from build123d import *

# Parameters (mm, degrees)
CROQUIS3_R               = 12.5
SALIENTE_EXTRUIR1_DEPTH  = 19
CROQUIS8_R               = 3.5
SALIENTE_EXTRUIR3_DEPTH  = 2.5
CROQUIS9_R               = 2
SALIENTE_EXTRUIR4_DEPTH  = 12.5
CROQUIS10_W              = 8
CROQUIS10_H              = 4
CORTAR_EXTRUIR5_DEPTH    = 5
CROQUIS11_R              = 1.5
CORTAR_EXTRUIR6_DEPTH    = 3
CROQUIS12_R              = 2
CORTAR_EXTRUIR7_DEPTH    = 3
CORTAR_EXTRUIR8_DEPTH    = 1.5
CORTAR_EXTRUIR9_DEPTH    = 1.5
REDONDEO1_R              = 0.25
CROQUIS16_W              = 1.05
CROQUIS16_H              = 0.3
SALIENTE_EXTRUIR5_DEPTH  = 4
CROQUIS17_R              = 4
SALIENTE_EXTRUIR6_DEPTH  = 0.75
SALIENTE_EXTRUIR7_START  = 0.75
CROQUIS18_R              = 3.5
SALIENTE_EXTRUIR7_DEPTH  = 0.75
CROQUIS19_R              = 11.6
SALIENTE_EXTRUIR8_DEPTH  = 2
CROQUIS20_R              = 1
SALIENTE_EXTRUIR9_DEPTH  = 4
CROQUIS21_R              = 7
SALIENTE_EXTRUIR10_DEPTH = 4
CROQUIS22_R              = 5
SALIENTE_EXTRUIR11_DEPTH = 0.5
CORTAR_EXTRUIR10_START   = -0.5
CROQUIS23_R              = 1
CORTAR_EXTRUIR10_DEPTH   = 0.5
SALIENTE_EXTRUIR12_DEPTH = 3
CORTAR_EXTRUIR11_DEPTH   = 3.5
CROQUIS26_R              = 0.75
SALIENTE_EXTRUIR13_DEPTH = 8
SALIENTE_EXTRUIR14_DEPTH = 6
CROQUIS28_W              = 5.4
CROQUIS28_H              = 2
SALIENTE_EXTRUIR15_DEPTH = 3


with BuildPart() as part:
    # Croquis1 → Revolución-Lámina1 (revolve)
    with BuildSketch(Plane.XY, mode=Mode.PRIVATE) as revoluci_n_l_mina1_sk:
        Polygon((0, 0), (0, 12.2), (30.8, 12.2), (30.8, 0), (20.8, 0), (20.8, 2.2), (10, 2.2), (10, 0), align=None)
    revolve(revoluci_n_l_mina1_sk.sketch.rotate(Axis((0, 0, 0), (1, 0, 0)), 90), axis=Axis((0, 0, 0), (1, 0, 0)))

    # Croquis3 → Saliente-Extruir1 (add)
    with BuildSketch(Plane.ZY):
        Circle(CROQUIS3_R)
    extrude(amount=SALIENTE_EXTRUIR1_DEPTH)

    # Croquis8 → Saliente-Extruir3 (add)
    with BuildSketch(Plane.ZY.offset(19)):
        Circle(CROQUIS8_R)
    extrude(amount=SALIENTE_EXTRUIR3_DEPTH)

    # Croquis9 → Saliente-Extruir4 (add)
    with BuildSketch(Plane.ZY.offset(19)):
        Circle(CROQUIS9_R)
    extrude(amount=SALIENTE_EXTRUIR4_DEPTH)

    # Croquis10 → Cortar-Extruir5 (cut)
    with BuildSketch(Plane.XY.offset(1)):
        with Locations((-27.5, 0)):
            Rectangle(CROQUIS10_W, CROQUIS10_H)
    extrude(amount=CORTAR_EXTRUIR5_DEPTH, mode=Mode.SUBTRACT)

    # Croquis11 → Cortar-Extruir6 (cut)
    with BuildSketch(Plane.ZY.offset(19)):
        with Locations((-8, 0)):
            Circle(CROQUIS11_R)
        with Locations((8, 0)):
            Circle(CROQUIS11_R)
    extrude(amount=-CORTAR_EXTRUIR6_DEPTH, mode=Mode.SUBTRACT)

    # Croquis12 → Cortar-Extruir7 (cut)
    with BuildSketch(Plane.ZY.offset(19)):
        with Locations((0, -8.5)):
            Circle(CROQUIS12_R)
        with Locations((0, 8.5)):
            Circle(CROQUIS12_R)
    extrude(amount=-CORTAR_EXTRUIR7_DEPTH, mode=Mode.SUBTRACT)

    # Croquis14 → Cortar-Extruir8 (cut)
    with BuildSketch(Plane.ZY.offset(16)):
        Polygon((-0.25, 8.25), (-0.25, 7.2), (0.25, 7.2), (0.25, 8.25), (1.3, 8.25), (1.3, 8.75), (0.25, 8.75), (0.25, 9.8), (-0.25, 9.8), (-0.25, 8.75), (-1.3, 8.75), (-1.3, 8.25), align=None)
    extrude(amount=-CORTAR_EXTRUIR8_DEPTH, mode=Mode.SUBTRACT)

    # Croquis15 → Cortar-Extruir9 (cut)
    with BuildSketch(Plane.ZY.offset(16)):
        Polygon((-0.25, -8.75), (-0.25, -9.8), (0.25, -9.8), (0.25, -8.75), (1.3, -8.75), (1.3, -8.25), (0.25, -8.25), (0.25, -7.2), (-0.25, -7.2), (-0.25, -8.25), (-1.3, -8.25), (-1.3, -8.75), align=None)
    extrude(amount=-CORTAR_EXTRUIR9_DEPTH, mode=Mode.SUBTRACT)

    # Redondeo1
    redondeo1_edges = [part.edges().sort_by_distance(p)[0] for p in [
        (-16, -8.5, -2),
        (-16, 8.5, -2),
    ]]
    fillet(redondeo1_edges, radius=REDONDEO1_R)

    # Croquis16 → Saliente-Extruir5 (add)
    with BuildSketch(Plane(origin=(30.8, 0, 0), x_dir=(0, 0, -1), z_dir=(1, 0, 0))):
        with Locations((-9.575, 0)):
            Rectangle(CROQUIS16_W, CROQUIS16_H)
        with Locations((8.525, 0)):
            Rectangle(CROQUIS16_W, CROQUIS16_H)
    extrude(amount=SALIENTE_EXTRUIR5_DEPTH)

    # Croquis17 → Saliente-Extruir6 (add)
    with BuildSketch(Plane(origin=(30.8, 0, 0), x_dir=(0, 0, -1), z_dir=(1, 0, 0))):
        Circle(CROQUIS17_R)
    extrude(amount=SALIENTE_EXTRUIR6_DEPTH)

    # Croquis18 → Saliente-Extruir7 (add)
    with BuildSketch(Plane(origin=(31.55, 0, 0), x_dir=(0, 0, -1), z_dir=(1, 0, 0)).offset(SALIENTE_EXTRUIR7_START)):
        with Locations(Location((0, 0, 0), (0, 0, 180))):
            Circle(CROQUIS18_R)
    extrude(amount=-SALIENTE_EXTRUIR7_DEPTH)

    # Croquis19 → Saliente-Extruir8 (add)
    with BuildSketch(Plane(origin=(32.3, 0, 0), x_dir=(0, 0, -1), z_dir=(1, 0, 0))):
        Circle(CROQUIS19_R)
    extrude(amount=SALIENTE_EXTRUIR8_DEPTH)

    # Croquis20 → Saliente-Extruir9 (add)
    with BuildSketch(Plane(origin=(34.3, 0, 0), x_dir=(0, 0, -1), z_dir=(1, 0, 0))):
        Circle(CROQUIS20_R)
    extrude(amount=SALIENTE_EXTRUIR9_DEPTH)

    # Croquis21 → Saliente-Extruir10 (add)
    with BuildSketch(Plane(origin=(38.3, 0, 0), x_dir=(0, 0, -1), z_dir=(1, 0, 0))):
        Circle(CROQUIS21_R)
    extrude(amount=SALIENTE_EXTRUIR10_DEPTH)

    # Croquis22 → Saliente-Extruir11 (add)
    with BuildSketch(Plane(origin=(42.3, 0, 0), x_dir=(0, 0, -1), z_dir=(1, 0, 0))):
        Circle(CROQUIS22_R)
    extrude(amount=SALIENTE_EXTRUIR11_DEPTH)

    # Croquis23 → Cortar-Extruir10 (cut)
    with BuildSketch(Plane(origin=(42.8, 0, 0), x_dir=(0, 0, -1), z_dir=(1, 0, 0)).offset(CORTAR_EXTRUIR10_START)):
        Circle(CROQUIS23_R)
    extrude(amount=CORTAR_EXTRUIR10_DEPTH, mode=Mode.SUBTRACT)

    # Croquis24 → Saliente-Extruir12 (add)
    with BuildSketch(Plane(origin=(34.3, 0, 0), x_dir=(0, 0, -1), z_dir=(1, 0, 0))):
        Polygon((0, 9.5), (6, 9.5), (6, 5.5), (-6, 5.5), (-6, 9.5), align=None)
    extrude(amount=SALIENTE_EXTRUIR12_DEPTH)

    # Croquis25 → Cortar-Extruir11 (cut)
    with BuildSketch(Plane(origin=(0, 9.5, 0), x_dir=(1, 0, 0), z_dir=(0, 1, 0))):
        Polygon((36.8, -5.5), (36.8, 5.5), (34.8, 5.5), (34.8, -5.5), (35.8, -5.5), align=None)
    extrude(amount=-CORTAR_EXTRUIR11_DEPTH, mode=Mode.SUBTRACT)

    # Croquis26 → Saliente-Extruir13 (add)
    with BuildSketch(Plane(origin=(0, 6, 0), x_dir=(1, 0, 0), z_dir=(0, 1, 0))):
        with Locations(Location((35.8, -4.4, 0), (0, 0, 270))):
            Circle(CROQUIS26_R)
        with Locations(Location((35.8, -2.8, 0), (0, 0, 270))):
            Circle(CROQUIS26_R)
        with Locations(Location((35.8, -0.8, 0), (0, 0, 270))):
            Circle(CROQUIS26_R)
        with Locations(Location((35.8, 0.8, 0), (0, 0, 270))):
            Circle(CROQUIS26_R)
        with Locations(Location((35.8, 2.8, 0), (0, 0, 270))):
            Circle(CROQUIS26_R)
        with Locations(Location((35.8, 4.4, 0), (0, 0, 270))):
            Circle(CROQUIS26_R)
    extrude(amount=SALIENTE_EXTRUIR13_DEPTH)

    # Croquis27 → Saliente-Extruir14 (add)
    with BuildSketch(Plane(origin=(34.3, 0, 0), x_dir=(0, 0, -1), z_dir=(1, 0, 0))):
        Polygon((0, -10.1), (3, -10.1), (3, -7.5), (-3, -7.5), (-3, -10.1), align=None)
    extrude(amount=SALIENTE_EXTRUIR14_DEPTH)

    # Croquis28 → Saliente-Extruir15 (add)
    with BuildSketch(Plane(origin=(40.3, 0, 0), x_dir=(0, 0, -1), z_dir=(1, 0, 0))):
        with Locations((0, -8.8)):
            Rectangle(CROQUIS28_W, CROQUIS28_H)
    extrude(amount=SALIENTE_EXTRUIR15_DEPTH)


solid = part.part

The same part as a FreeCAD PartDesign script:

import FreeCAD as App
import Part
import Sketcher
from FreeCAD import Vector


def edges_at(feature, points):
    """Names of the edges that pass closest to the given points."""
    edges = feature.Shape.Edges
    near = lambda p: min(range(len(edges)), key=lambda i: edges[i].distToShape(Part.Vertex(*p))[0])
    return sorted({f"Edge{near(p) + 1}" for p in points})

doc = App.newDocument("Part")
params = doc.addObject("Spreadsheet::Sheet", "Params")
for row, (alias, value) in enumerate([
    ("sketch1_width", "10 mm"),
    ("sketch1_width2", "10.8 mm"),
    ("sketch1_height", "12.2 mm"),
    ("sketch1_height2", "2.2 mm"),
    ("revolution_angle", "360 deg"),
    ("sketch2_diameter", "25 mm"),
    ("pad1_length", "19 mm"),
    ("sketch3_diameter", "7 mm"),
    ("pad2_length", "2.5 mm"),
    ("sketch4_diameter", "4 mm"),
    ("pad3_length", "12.5 mm"),
    ("sketch5_width", "8 mm"),
    ("sketch5_height", "4 mm"),
    ("pocket1_length", "5 mm"),
    ("sketch6_diameter", "3 mm"),
    ("pocket2_length", "3 mm"),
    ("sketch7_diameter", "4 mm"),
    ("pocket3_length", "3 mm"),
    ("sketch8_width", "0.5 mm"),
    ("sketch8_width2", "1.05 mm"),
    ("pocket4_length", "1.5 mm"),
    ("sketch9_width", "0.5 mm"),
    ("sketch9_width2", "1.05 mm"),
    ("pocket5_length", "1.5 mm"),
    ("fillet_radius", "0.25 mm"),
    ("sketch10_width", "0.3 mm"),
    ("sketch10_height", "1.05 mm"),
    ("pad4_length", "4 mm"),
    ("sketch11_diameter", "8 mm"),
    ("pad5_length", "0.75 mm"),
    ("sketch12_diameter", "7 mm"),
    ("pad6_length", "0.75 mm"),
    ("sketch13_diameter", "23.2 mm"),
    ("pad7_length", "2 mm"),
    ("sketch14_diameter", "2 mm"),
    ("pad8_length", "4 mm"),
    ("sketch15_diameter", "14 mm"),
    ("pad9_length", "4 mm"),
    ("sketch16_diameter", "10 mm"),
    ("pad10_length", "0.5 mm"),
    ("sketch17_diameter", "2 mm"),
    ("pocket6_length", "0.5 mm"),
    ("sketch18_width", "4 mm"),
    ("sketch18_height", "12 mm"),
    ("pad11_length", "3 mm"),
    ("sketch19_width", "2 mm"),
    ("sketch19_height", "11 mm"),
    ("pocket7_length", "3.5 mm"),
    ("sketch20_diameter", "1.5 mm"),
    ("pad12_length", "8 mm"),
    ("sketch21_height", "6 mm"),
    ("sketch21_width", "2.6 mm"),
    ("pad13_length", "6 mm"),
    ("sketch22_width", "2 mm"),
    ("sketch22_height", "5.4 mm"),
    ("pad14_length", "3 mm"),
], start=1):
    params.set(f"A{row}", alias)
    params.set(f"B{row}", "=" + value)
    params.setAlias(f"B{row}", alias)

body = doc.addObject("PartDesign::Body", "Body")

sketch1 = body.newObject("Sketcher::SketchObject", "Sketch")
sketch1.AttachmentSupport = (doc.getObject("XY_Plane"), [""])
sketch1.MapMode = "FlatFace"
sketch1.addGeometry(Part.LineSegment(Vector(0, 12.2, 0), Vector(0, 0, 0)), False)
sketch1.addGeometry(Part.LineSegment(Vector(0, 0, 0), Vector(10, 0, 0)), False)
sketch1.addGeometry(Part.LineSegment(Vector(10, 0, 0), Vector(10, 2.2, 0)), False)
sketch1.addGeometry(Part.LineSegment(Vector(10, 2.2, 0), Vector(20.8, 2.2, 0)), False)
sketch1.addGeometry(Part.LineSegment(Vector(20.8, 2.2, 0), Vector(20.8, 0, 0)), False)
sketch1.addGeometry(Part.LineSegment(Vector(20.8, 0, 0), Vector(30.8, 0, 0)), False)
sketch1.addGeometry(Part.LineSegment(Vector(30.8, 0, 0), Vector(30.8, 12.2, 0)), False)
sketch1.addGeometry(Part.LineSegment(Vector(30.8, 12.2, 0), Vector(0, 12.2, 0)), False)
sketch1.addConstraint(Sketcher.Constraint("Coincident", 0, 2, 1, 1))
sketch1.addConstraint(Sketcher.Constraint("Coincident", 1, 2, 2, 1))
sketch1.addConstraint(Sketcher.Constraint("Coincident", 2, 2, 3, 1))
sketch1.addConstraint(Sketcher.Constraint("Coincident", 3, 2, 4, 1))
sketch1.addConstraint(Sketcher.Constraint("Coincident", 4, 2, 5, 1))
sketch1.addConstraint(Sketcher.Constraint("Coincident", 5, 2, 6, 1))
sketch1.addConstraint(Sketcher.Constraint("Coincident", 6, 2, 7, 1))
sketch1.addConstraint(Sketcher.Constraint("Coincident", 7, 2, 0, 1))
sketch1.addConstraint(Sketcher.Constraint("Vertical", 0))
sketch1.addConstraint(Sketcher.Constraint("Horizontal", 1))
sketch1.addConstraint(Sketcher.Constraint("Vertical", 2))
sketch1.addConstraint(Sketcher.Constraint("Horizontal", 3))
sketch1.addConstraint(Sketcher.Constraint("Vertical", 4))
sketch1.addConstraint(Sketcher.Constraint("Horizontal", 5))
sketch1.addConstraint(Sketcher.Constraint("Vertical", 6))
sketch1.addConstraint(Sketcher.Constraint("Horizontal", 7))
sketch1.addConstraint(Sketcher.Constraint("Coincident", 0, 2, -1, 1))
sketch1.addConstraint(Sketcher.Constraint("PointOnObject", 4, 2, -1))
sketch1.addConstraint(Sketcher.Constraint("Equal", 1, 5))
sketch1.addConstraint(Sketcher.Constraint("DistanceX", 1, 1, 1, 2, 10.0))
sketch1.addConstraint(Sketcher.Constraint("DistanceX", 3, 1, 3, 2, 10.8))
sketch1.addConstraint(Sketcher.Constraint("DistanceY", 0, 2, 0, 1, 12.2))
sketch1.addConstraint(Sketcher.Constraint("DistanceY", 2, 1, 2, 2, 2.2))
sketch1.setExpression("Constraints[19]", "Params.sketch1_width")
sketch1.setExpression("Constraints[20]", "Params.sketch1_width2")
sketch1.setExpression("Constraints[21]", "Params.sketch1_height")
sketch1.setExpression("Constraints[22]", "Params.sketch1_height2")
revolution = body.newObject("PartDesign::Revolution", "Revolution")
revolution.Profile = sketch1
revolution.ReferenceAxis = (sketch1, ["H_Axis"])
revolution.setExpression("Angle", "Params.revolution_angle")

sketch2 = body.newObject("Sketcher::SketchObject", "Sketch001")
sketch2.AttachmentSupport = (doc.getObject("YZ_Plane"), [""])
sketch2.MapMode = "FlatFace"
sketch2.addGeometry(Part.Circle(Vector(0, 0, 0), Vector(0, 0, 1), 12), False)
sketch2.addConstraint(Sketcher.Constraint("Coincident", 0, 3, -1, 1))
sketch2.addConstraint(Sketcher.Constraint("Diameter", 0, 25.0))
sketch2.setExpression("Constraints[1]", "Params.sketch2_diameter")
pad1 = body.newObject("PartDesign::Pad", "Pad")
pad1.Profile = sketch2
pad1.setExpression("Length", "Params.pad1_length")
pad1.Reversed = True

sketch3 = body.newObject("Sketcher::SketchObject", "Sketch002")
sketch3.AttachmentSupport = (doc.getObject("YZ_Plane"), [""])
sketch3.MapMode = "FlatFace"
sketch3.AttachmentOffset = App.Placement(Vector(0, 0, -19), App.Rotation())
sketch3.addGeometry(Part.Circle(Vector(0, 0, 0), Vector(0, 0, 1), 3.5), False)
sketch3.addConstraint(Sketcher.Constraint("Coincident", 0, 3, -1, 1))
sketch3.addConstraint(Sketcher.Constraint("Diameter", 0, 7.0))
sketch3.setExpression("Constraints[1]", "Params.sketch3_diameter")
pad2 = body.newObject("PartDesign::Pad", "Pad001")
pad2.Profile = sketch3
pad2.setExpression("Length", "Params.pad2_length")
pad2.Reversed = True

sketch4 = body.newObject("Sketcher::SketchObject", "Sketch003")
sketch4.AttachmentSupport = (doc.getObject("YZ_Plane"), [""])
sketch4.MapMode = "FlatFace"
sketch4.AttachmentOffset = App.Placement(Vector(0, 0, -19), App.Rotation())
sketch4.addGeometry(Part.Circle(Vector(0, 0, 0), Vector(0, 0, 1), 2), False)
sketch4.addConstraint(Sketcher.Constraint("Coincident", 0, 3, -1, 1))
sketch4.addConstraint(Sketcher.Constraint("Diameter", 0, 4.0))
sketch4.setExpression("Constraints[1]", "Params.sketch4_diameter")
pad3 = body.newObject("PartDesign::Pad", "Pad002")
pad3.Profile = sketch4
pad3.setExpression("Length", "Params.pad3_length")
pad3.Reversed = True

sketch5 = body.newObject("Sketcher::SketchObject", "Sketch004")
sketch5.AttachmentSupport = (doc.getObject("XY_Plane"), [""])
sketch5.MapMode = "FlatFace"
sketch5.AttachmentOffset = App.Placement(Vector(0, 0, 1), App.Rotation())
sketch5.addGeometry(Part.LineSegment(Vector(-31.5, 2, 0), Vector(-31.5, -2, 0)), False)
sketch5.addGeometry(Part.LineSegment(Vector(-31.5, -2, 0), Vector(-23.5, -2, 0)), False)
sketch5.addGeometry(Part.LineSegment(Vector(-23.5, -2, 0), Vector(-23.5, 2, 0)), False)
sketch5.addGeometry(Part.LineSegment(Vector(-23.5, 2, 0), Vector(-31.5, 2, 0)), False)
sketch5.addConstraint(Sketcher.Constraint("Coincident", 0, 2, 1, 1))
sketch5.addConstraint(Sketcher.Constraint("Coincident", 1, 2, 2, 1))
sketch5.addConstraint(Sketcher.Constraint("Coincident", 2, 2, 3, 1))
sketch5.addConstraint(Sketcher.Constraint("Coincident", 3, 2, 0, 1))
sketch5.addConstraint(Sketcher.Constraint("Vertical", 0))
sketch5.addConstraint(Sketcher.Constraint("Horizontal", 1))
sketch5.addConstraint(Sketcher.Constraint("Vertical", 2))
sketch5.addConstraint(Sketcher.Constraint("Horizontal", 3))
sketch5.addConstraint(Sketcher.Constraint("DistanceX", 1, 1, 1, 2, 8.0))
sketch5.addConstraint(Sketcher.Constraint("DistanceY", 0, 2, 0, 1, 4.0))
sketch5.addConstraint(Sketcher.Constraint("DistanceY", 0, 2, -1, 1, 2.0))
sketch5.addConstraint(Sketcher.Constraint("DistanceX", 0, 2, -1, 1, 31.5))
sketch5.setExpression("Constraints[8]", "Params.sketch5_width")
sketch5.setExpression("Constraints[9]", "Params.sketch5_height")
pocket1 = body.newObject("PartDesign::Pocket", "Pocket")
pocket1.Profile = sketch5
pocket1.setExpression("Length", "Params.pocket1_length")
pocket1.Reversed = True

sketch6 = body.newObject("Sketcher::SketchObject", "Sketch005")
sketch6.AttachmentSupport = (doc.getObject("YZ_Plane"), [""])
sketch6.MapMode = "FlatFace"
sketch6.AttachmentOffset = App.Placement(Vector(0, 0, -19), App.Rotation())
sketch6.addGeometry(Part.Circle(Vector(0, -8, 0), Vector(0, 0, 1), 1.5), False)
sketch6.addGeometry(Part.Circle(Vector(0, 8, 0), Vector(0, 0, 1), 1.5), False)
sketch6.addConstraint(Sketcher.Constraint("Equal", 0, 1))
sketch6.addConstraint(Sketcher.Constraint("Symmetric", 0, 3, 1, 3, -1, 1))
sketch6.addConstraint(Sketcher.Constraint("PointOnObject", 0, 3, -2))
sketch6.addConstraint(Sketcher.Constraint("Diameter", 0, 3.0))
sketch6.addConstraint(Sketcher.Constraint("DistanceY", 0, 3, -1, 1, 8.0))
sketch6.setExpression("Constraints[3]", "Params.sketch6_diameter")
pocket2 = body.newObject("PartDesign::Pocket", "Pocket001")
pocket2.Profile = sketch6
pocket2.setExpression("Length", "Params.pocket2_length")
pocket2.Reversed = True

sketch7 = body.newObject("Sketcher::SketchObject", "Sketch006")
sketch7.AttachmentSupport = (doc.getObject("YZ_Plane"), [""])
sketch7.MapMode = "FlatFace"
sketch7.AttachmentOffset = App.Placement(Vector(0, 0, -19), App.Rotation())
sketch7.addGeometry(Part.Circle(Vector(-8.5, 0, 0), Vector(0, 0, 1), 2), False)
sketch7.addGeometry(Part.Circle(Vector(8.5, 0, 0), Vector(0, 0, 1), 2), False)
sketch7.addConstraint(Sketcher.Constraint("Equal", 0, 1))
sketch7.addConstraint(Sketcher.Constraint("Symmetric", 0, 3, 1, 3, -1, 1))
sketch7.addConstraint(Sketcher.Constraint("PointOnObject", 0, 3, -1))
sketch7.addConstraint(Sketcher.Constraint("Diameter", 0, 4.0))
sketch7.addConstraint(Sketcher.Constraint("DistanceX", 0, 3, 1, 3, 17.0))
sketch7.setExpression("Constraints[3]", "Params.sketch7_diameter")
pocket3 = body.newObject("PartDesign::Pocket", "Pocket002")
pocket3.Profile = sketch7
pocket3.setExpression("Length", "Params.pocket3_length")
pocket3.Reversed = True

sketch8 = body.newObject("Sketcher::SketchObject", "Sketch007")
sketch8.AttachmentSupport = (doc.getObject("YZ_Plane"), [""])
sketch8.MapMode = "FlatFace"
sketch8.AttachmentOffset = App.Placement(Vector(0, 0, -16), App.Rotation())
sketch8.addGeometry(Part.LineSegment(Vector(8.2, -0.2, 0), Vector(7.2, -0.2, 0)), False)
sketch8.addGeometry(Part.LineSegment(Vector(7.2, -0.2, 0), Vector(7.2, 0.2, 0)), False)
sketch8.addGeometry(Part.LineSegment(Vector(7.2, 0.2, 0), Vector(8.2, 0.2, 0)), False)
sketch8.addGeometry(Part.LineSegment(Vector(8.2, 0.2, 0), Vector(8.2, 1.3, 0)), False)
sketch8.addGeometry(Part.LineSegment(Vector(8.2, 1.3, 0), Vector(8.8, 1.3, 0)), False)
sketch8.addGeometry(Part.LineSegment(Vector(8.8, 1.3, 0), Vector(8.8, 0.2, 0)), False)
sketch8.addGeometry(Part.LineSegment(Vector(8.8, 0.2, 0), Vector(9.8, 0.2, 0)), False)
sketch8.addGeometry(Part.LineSegment(Vector(9.8, 0.2, 0), Vector(9.8, -0.2, 0)), False)
sketch8.addGeometry(Part.LineSegment(Vector(9.8, -0.2, 0), Vector(8.8, -0.2, 0)), False)
sketch8.addGeometry(Part.LineSegment(Vector(8.8, -0.2, 0), Vector(8.8, -1.3, 0)), False)
sketch8.addGeometry(Part.LineSegment(Vector(8.8, -1.3, 0), Vector(8.2, -1.3, 0)), False)
sketch8.addGeometry(Part.LineSegment(Vector(8.2, -1.3, 0), Vector(8.2, -0.2, 0)), False)
sketch8.addConstraint(Sketcher.Constraint("Coincident", 0, 2, 1, 1))
sketch8.addConstraint(Sketcher.Constraint("Coincident", 1, 2, 2, 1))
sketch8.addConstraint(Sketcher.Constraint("Coincident", 2, 2, 3, 1))
sketch8.addConstraint(Sketcher.Constraint("Coincident", 3, 2, 4, 1))
sketch8.addConstraint(Sketcher.Constraint("Coincident", 4, 2, 5, 1))
sketch8.addConstraint(Sketcher.Constraint("Coincident", 5, 2, 6, 1))
sketch8.addConstraint(Sketcher.Constraint("Coincident", 6, 2, 7, 1))
sketch8.addConstraint(Sketcher.Constraint("Coincident", 7, 2, 8, 1))
sketch8.addConstraint(Sketcher.Constraint("Coincident", 8, 2, 9, 1))
sketch8.addConstraint(Sketcher.Constraint("Coincident", 9, 2, 10, 1))
sketch8.addConstraint(Sketcher.Constraint("Coincident", 10, 2, 11, 1))
sketch8.addConstraint(Sketcher.Constraint("Coincident", 11, 2, 0, 1))
sketch8.addConstraint(Sketcher.Constraint("Horizontal", 0))
sketch8.addConstraint(Sketcher.Constraint("Vertical", 1))
sketch8.addConstraint(Sketcher.Constraint("Horizontal", 2))
sketch8.addConstraint(Sketcher.Constraint("Vertical", 3))
sketch8.addConstraint(Sketcher.Constraint("Horizontal", 4))
sketch8.addConstraint(Sketcher.Constraint("Vertical", 5))
sketch8.addConstraint(Sketcher.Constraint("Horizontal", 6))
sketch8.addConstraint(Sketcher.Constraint("Vertical", 7))
sketch8.addConstraint(Sketcher.Constraint("Horizontal", 8))
sketch8.addConstraint(Sketcher.Constraint("Vertical", 9))
sketch8.addConstraint(Sketcher.Constraint("Horizontal", 10))
sketch8.addConstraint(Sketcher.Constraint("Vertical", 11))
sketch8.addConstraint(Sketcher.Constraint("Symmetric", 5, 2, 8, 2, -1))
sketch8.addConstraint(Sketcher.Constraint("Symmetric", 3, 2, 10, 2, -1))
sketch8.addConstraint(Sketcher.Constraint("Horizontal", 2, 2, 5, 2))
sketch8.addConstraint(Sketcher.Constraint("Horizontal", 0, 2, 7, 2))
sketch8.addConstraint(Sketcher.Constraint("Equal", 2, 6))
sketch8.addConstraint(Sketcher.Constraint("Equal", 10, 1))
sketch8.addConstraint(Sketcher.Constraint("Equal", 8, 3))
sketch8.addConstraint(Sketcher.Constraint("DistanceX", 4, 1, 4, 2, 0.5))
sketch8.addConstraint(Sketcher.Constraint("DistanceX", 0, 2, 0, 1, 1.05))
sketch8.addConstraint(Sketcher.Constraint("DistanceX", -1, 1, 0, 2, 7.2))
sketch8.setExpression("Constraints[31]", "Params.sketch8_width")
sketch8.setExpression("Constraints[32]", "Params.sketch8_width2")
pocket4 = body.newObject("PartDesign::Pocket", "Pocket003")
pocket4.Profile = sketch8
pocket4.setExpression("Length", "Params.pocket4_length")
pocket4.Reversed = True

sketch9 = body.newObject("Sketcher::SketchObject", "Sketch008")
sketch9.AttachmentSupport = (doc.getObject("YZ_Plane"), [""])
sketch9.MapMode = "FlatFace"
sketch9.AttachmentOffset = App.Placement(Vector(0, 0, -16), App.Rotation())
sketch9.addGeometry(Part.LineSegment(Vector(-8.8, -0.2, 0), Vector(-9.8, -0.2, 0)), False)
sketch9.addGeometry(Part.LineSegment(Vector(-9.8, -0.2, 0), Vector(-9.8, 0.2, 0)), False)
sketch9.addGeometry(Part.LineSegment(Vector(-9.8, 0.2, 0), Vector(-8.8, 0.2, 0)), False)
sketch9.addGeometry(Part.LineSegment(Vector(-8.8, 0.2, 0), Vector(-8.8, 1.3, 0)), False)
sketch9.addGeometry(Part.LineSegment(Vector(-8.8, 1.3, 0), Vector(-8.2, 1.3, 0)), False)
sketch9.addGeometry(Part.LineSegment(Vector(-8.2, 1.3, 0), Vector(-8.2, 0.2, 0)), False)
sketch9.addGeometry(Part.LineSegment(Vector(-8.2, 0.2, 0), Vector(-7.2, 0.2, 0)), False)
sketch9.addGeometry(Part.LineSegment(Vector(-7.2, 0.2, 0), Vector(-7.2, -0.2, 0)), False)
sketch9.addGeometry(Part.LineSegment(Vector(-7.2, -0.2, 0), Vector(-8.2, -0.2, 0)), False)
sketch9.addGeometry(Part.LineSegment(Vector(-8.2, -0.2, 0), Vector(-8.2, -1.3, 0)), False)
sketch9.addGeometry(Part.LineSegment(Vector(-8.2, -1.3, 0), Vector(-8.8, -1.3, 0)), False)
sketch9.addGeometry(Part.LineSegment(Vector(-8.8, -1.3, 0), Vector(-8.8, -0.2, 0)), False)
sketch9.addConstraint(Sketcher.Constraint("Coincident", 0, 2, 1, 1))
sketch9.addConstraint(Sketcher.Constraint("Coincident", 1, 2, 2, 1))
sketch9.addConstraint(Sketcher.Constraint("Coincident", 2, 2, 3, 1))
sketch9.addConstraint(Sketcher.Constraint("Coincident", 3, 2, 4, 1))
sketch9.addConstraint(Sketcher.Constraint("Coincident", 4, 2, 5, 1))
sketch9.addConstraint(Sketcher.Constraint("Coincident", 5, 2, 6, 1))
sketch9.addConstraint(Sketcher.Constraint("Coincident", 6, 2, 7, 1))
sketch9.addConstraint(Sketcher.Constraint("Coincident", 7, 2, 8, 1))
sketch9.addConstraint(Sketcher.Constraint("Coincident", 8, 2, 9, 1))
sketch9.addConstraint(Sketcher.Constraint("Coincident", 9, 2, 10, 1))
sketch9.addConstraint(Sketcher.Constraint("Coincident", 10, 2, 11, 1))
sketch9.addConstraint(Sketcher.Constraint("Coincident", 11, 2, 0, 1))
sketch9.addConstraint(Sketcher.Constraint("Horizontal", 0))
sketch9.addConstraint(Sketcher.Constraint("Vertical", 1))
sketch9.addConstraint(Sketcher.Constraint("Horizontal", 2))
sketch9.addConstraint(Sketcher.Constraint("Vertical", 3))
sketch9.addConstraint(Sketcher.Constraint("Horizontal", 4))
sketch9.addConstraint(Sketcher.Constraint("Vertical", 5))
sketch9.addConstraint(Sketcher.Constraint("Horizontal", 6))
sketch9.addConstraint(Sketcher.Constraint("Vertical", 7))
sketch9.addConstraint(Sketcher.Constraint("Horizontal", 8))
sketch9.addConstraint(Sketcher.Constraint("Vertical", 9))
sketch9.addConstraint(Sketcher.Constraint("Horizontal", 10))
sketch9.addConstraint(Sketcher.Constraint("Vertical", 11))
sketch9.addConstraint(Sketcher.Constraint("Symmetric", 5, 2, 8, 2, -1))
sketch9.addConstraint(Sketcher.Constraint("Symmetric", 3, 2, 10, 2, -1))
sketch9.addConstraint(Sketcher.Constraint("Horizontal", 2, 2, 5, 2))
sketch9.addConstraint(Sketcher.Constraint("Horizontal", 0, 2, 7, 2))
sketch9.addConstraint(Sketcher.Constraint("Equal", 2, 6))
sketch9.addConstraint(Sketcher.Constraint("Equal", 10, 1))
sketch9.addConstraint(Sketcher.Constraint("Equal", 8, 3))
sketch9.addConstraint(Sketcher.Constraint("DistanceX", 4, 1, 4, 2, 0.5))
sketch9.addConstraint(Sketcher.Constraint("DistanceX", 0, 2, 0, 1, 1.05))
sketch9.addConstraint(Sketcher.Constraint("DistanceX", 0, 2, -1, 1, 9.8))
sketch9.setExpression("Constraints[31]", "Params.sketch9_width")
sketch9.setExpression("Constraints[32]", "Params.sketch9_width2")
pocket5 = body.newObject("PartDesign::Pocket", "Pocket004")
pocket5.Profile = sketch9
pocket5.setExpression("Length", "Params.pocket5_length")
pocket5.Reversed = True
doc.recompute()

fillet = body.newObject("PartDesign::Fillet", "Fillet")
fillet.Base = (pocket5, edges_at(pocket5, [(-16, -8.5, -2), (-16, 8.5, -2)]))
fillet.setExpression("Radius", "Params.fillet_radius")

sketch10 = body.newObject("Sketcher::SketchObject", "Sketch009")
sketch10.AttachmentSupport = (doc.getObject("YZ_Plane"), [""])
sketch10.MapMode = "FlatFace"
sketch10.AttachmentOffset = App.Placement(Vector(0, 0, 30.8), App.Rotation())
sketch10.addGeometry(Part.LineSegment(Vector(0.15, 10.1, 0), Vector(-0.15, 10.1, 0)), False)
sketch10.addGeometry(Part.LineSegment(Vector(-0.15, 10.1, 0), Vector(-0.15, 9.05, 0)), False)
sketch10.addGeometry(Part.LineSegment(Vector(-0.15, 9.05, 0), Vector(0.15, 9.05, 0)), False)
sketch10.addGeometry(Part.LineSegment(Vector(0.15, 9.05, 0), Vector(0.15, 10.1, 0)), False)
sketch10.addGeometry(Part.LineSegment(Vector(0.15, -8, 0), Vector(-0.15, -8, 0)), False)
sketch10.addGeometry(Part.LineSegment(Vector(-0.15, -8, 0), Vector(-0.15, -9.05, 0)), False)
sketch10.addGeometry(Part.LineSegment(Vector(-0.15, -9.05, 0), Vector(0.15, -9.05, 0)), False)
sketch10.addGeometry(Part.LineSegment(Vector(0.15, -9.05, 0), Vector(0.15, -8, 0)), False)
sketch10.addConstraint(Sketcher.Constraint("Coincident", 0, 2, 1, 1))
sketch10.addConstraint(Sketcher.Constraint("Coincident", 1, 2, 2, 1))
sketch10.addConstraint(Sketcher.Constraint("Coincident", 2, 2, 3, 1))
sketch10.addConstraint(Sketcher.Constraint("Coincident", 3, 2, 0, 1))
sketch10.addConstraint(Sketcher.Constraint("Coincident", 4, 2, 5, 1))
sketch10.addConstraint(Sketcher.Constraint("Coincident", 5, 2, 6, 1))
sketch10.addConstraint(Sketcher.Constraint("Coincident", 6, 2, 7, 1))
sketch10.addConstraint(Sketcher.Constraint("Coincident", 7, 2, 4, 1))
sketch10.addConstraint(Sketcher.Constraint("Horizontal", 0))
sketch10.addConstraint(Sketcher.Constraint("Vertical", 1))
sketch10.addConstraint(Sketcher.Constraint("Horizontal", 2))
sketch10.addConstraint(Sketcher.Constraint("Vertical", 3))
sketch10.addConstraint(Sketcher.Constraint("Horizontal", 4))
sketch10.addConstraint(Sketcher.Constraint("Vertical", 5))
sketch10.addConstraint(Sketcher.Constraint("Horizontal", 6))
sketch10.addConstraint(Sketcher.Constraint("Vertical", 7))
sketch10.addConstraint(Sketcher.Constraint("Symmetric", 2, 2, 5, 2, -1, 1))
sketch10.addConstraint(Sketcher.Constraint("Vertical", 1, 2, 4, 2))
sketch10.addConstraint(Sketcher.Constraint("Vertical", 3, 2, 6, 2))
sketch10.addConstraint(Sketcher.Constraint("Equal", 3, 5))
sketch10.addConstraint(Sketcher.Constraint("DistanceX", 0, 2, 0, 1, 0.3))
sketch10.addConstraint(Sketcher.Constraint("DistanceY", 4, 2, -1, 1, 8.0))
sketch10.addConstraint(Sketcher.Constraint("DistanceY", 1, 2, 1, 1, 1.05))
sketch10.setExpression("Constraints[20]", "Params.sketch10_width")
sketch10.setExpression("Constraints[22]", "Params.sketch10_height")
pad4 = body.newObject("PartDesign::Pad", "Pad003")
pad4.Profile = sketch10
pad4.setExpression("Length", "Params.pad4_length")

sketch11 = body.newObject("Sketcher::SketchObject", "Sketch010")
sketch11.AttachmentSupport = (doc.getObject("YZ_Plane"), [""])
sketch11.MapMode = "FlatFace"
sketch11.AttachmentOffset = App.Placement(Vector(0, 0, 30.8), App.Rotation())
sketch11.addGeometry(Part.Circle(Vector(0, 0, 0), Vector(0, 0, 1), 4), False)
sketch11.addConstraint(Sketcher.Constraint("Coincident", 0, 3, -1, 1))
sketch11.addConstraint(Sketcher.Constraint("Diameter", 0, 8.0))
sketch11.setExpression("Constraints[1]", "Params.sketch11_diameter")
pad5 = body.newObject("PartDesign::Pad", "Pad004")
pad5.Profile = sketch11
pad5.setExpression("Length", "Params.pad5_length")

sketch12 = body.newObject("Sketcher::SketchObject", "Sketch011")
sketch12.AttachmentSupport = (doc.getObject("YZ_Plane"), [""])
sketch12.MapMode = "FlatFace"
sketch12.AttachmentOffset = App.Placement(Vector(0, 0, 32.3), App.Rotation())
sketch12.addGeometry(Part.Circle(Vector(0, 0, 0), Vector(0, 0, 1), 3.5), False)
sketch12.addConstraint(Sketcher.Constraint("Coincident", 0, 3, -1, 1))
sketch12.addConstraint(Sketcher.Constraint("Diameter", 0, 7.0))
sketch12.setExpression("Constraints[1]", "Params.sketch12_diameter")
pad6 = body.newObject("PartDesign::Pad", "Pad005")
pad6.Profile = sketch12
pad6.setExpression("Length", "Params.pad6_length")
pad6.Reversed = True

sketch13 = body.newObject("Sketcher::SketchObject", "Sketch012")
sketch13.AttachmentSupport = (doc.getObject("YZ_Plane"), [""])
sketch13.MapMode = "FlatFace"
sketch13.AttachmentOffset = App.Placement(Vector(0, 0, 32.3), App.Rotation())
sketch13.addGeometry(Part.Circle(Vector(0, 0, 0), Vector(0, 0, 1), 12), False)
sketch13.addConstraint(Sketcher.Constraint("Coincident", 0, 3, -1, 1))
sketch13.addConstraint(Sketcher.Constraint("Diameter", 0, 23.2))
sketch13.setExpression("Constraints[1]", "Params.sketch13_diameter")
pad7 = body.newObject("PartDesign::Pad", "Pad006")
pad7.Profile = sketch13
pad7.setExpression("Length", "Params.pad7_length")

sketch14 = body.newObject("Sketcher::SketchObject", "Sketch013")
sketch14.AttachmentSupport = (doc.getObject("YZ_Plane"), [""])
sketch14.MapMode = "FlatFace"
sketch14.AttachmentOffset = App.Placement(Vector(0, 0, 34.3), App.Rotation())
sketch14.addGeometry(Part.Circle(Vector(0, 0, 0), Vector(0, 0, 1), 1), False)
sketch14.addConstraint(Sketcher.Constraint("Coincident", 0, 3, -1, 1))
sketch14.addConstraint(Sketcher.Constraint("Diameter", 0, 2.0))
sketch14.setExpression("Constraints[1]", "Params.sketch14_diameter")
pad8 = body.newObject("PartDesign::Pad", "Pad007")
pad8.Profile = sketch14
pad8.setExpression("Length", "Params.pad8_length")

sketch15 = body.newObject("Sketcher::SketchObject", "Sketch014")
sketch15.AttachmentSupport = (doc.getObject("YZ_Plane"), [""])
sketch15.MapMode = "FlatFace"
sketch15.AttachmentOffset = App.Placement(Vector(0, 0, 38.3), App.Rotation())
sketch15.addGeometry(Part.Circle(Vector(0, 0, 0), Vector(0, 0, 1), 7), False)
sketch15.addConstraint(Sketcher.Constraint("Coincident", 0, 3, -1, 1))
sketch15.addConstraint(Sketcher.Constraint("Diameter", 0, 14.0))
sketch15.setExpression("Constraints[1]", "Params.sketch15_diameter")
pad9 = body.newObject("PartDesign::Pad", "Pad008")
pad9.Profile = sketch15
pad9.setExpression("Length", "Params.pad9_length")

sketch16 = body.newObject("Sketcher::SketchObject", "Sketch015")
sketch16.AttachmentSupport = (doc.getObject("YZ_Plane"), [""])
sketch16.MapMode = "FlatFace"
sketch16.AttachmentOffset = App.Placement(Vector(0, 0, 42.3), App.Rotation())
sketch16.addGeometry(Part.Circle(Vector(0, 0, 0), Vector(0, 0, 1), 5), False)
sketch16.addConstraint(Sketcher.Constraint("Coincident", 0, 3, -1, 1))
sketch16.addConstraint(Sketcher.Constraint("Diameter", 0, 10.0))
sketch16.setExpression("Constraints[1]", "Params.sketch16_diameter")
pad10 = body.newObject("PartDesign::Pad", "Pad009")
pad10.Profile = sketch16
pad10.setExpression("Length", "Params.pad10_length")

sketch17 = body.newObject("Sketcher::SketchObject", "Sketch016")
sketch17.AttachmentSupport = (doc.getObject("YZ_Plane"), [""])
sketch17.MapMode = "FlatFace"
sketch17.AttachmentOffset = App.Placement(Vector(0, 0, 42.3), App.Rotation())
sketch17.addGeometry(Part.Circle(Vector(0, 0, 0), Vector(0, 0, 1), 1), False)
sketch17.addConstraint(Sketcher.Constraint("Coincident", 0, 3, -1, 1))
sketch17.addConstraint(Sketcher.Constraint("Diameter", 0, 2.0))
sketch17.setExpression("Constraints[1]", "Params.sketch17_diameter")
pocket6 = body.newObject("PartDesign::Pocket", "Pocket005")
pocket6.Profile = sketch17
pocket6.setExpression("Length", "Params.pocket6_length")
pocket6.Reversed = True

sketch18 = body.newObject("Sketcher::SketchObject", "Sketch017")
sketch18.AttachmentSupport = (doc.getObject("YZ_Plane"), [""])
sketch18.MapMode = "FlatFace"
sketch18.AttachmentOffset = App.Placement(Vector(0, 0, 34.3), App.Rotation())
sketch18.addGeometry(Part.LineSegment(Vector(9.5, -6, 0), Vector(9.5, 6, 0)), False)
sketch18.addGeometry(Part.LineSegment(Vector(9.5, 6, 0), Vector(5.5, 6, 0)), False)
sketch18.addGeometry(Part.LineSegment(Vector(5.5, 6, 0), Vector(5.5, -6, 0)), False)
sketch18.addGeometry(Part.LineSegment(Vector(5.5, -6, 0), Vector(9.5, -6, 0)), False)
sketch18.addConstraint(Sketcher.Constraint("Coincident", 0, 2, 1, 1))
sketch18.addConstraint(Sketcher.Constraint("Coincident", 1, 2, 2, 1))
sketch18.addConstraint(Sketcher.Constraint("Coincident", 2, 2, 3, 1))
sketch18.addConstraint(Sketcher.Constraint("Coincident", 3, 2, 0, 1))
sketch18.addConstraint(Sketcher.Constraint("Vertical", 0))
sketch18.addConstraint(Sketcher.Constraint("Horizontal", 1))
sketch18.addConstraint(Sketcher.Constraint("Vertical", 2))
sketch18.addConstraint(Sketcher.Constraint("Horizontal", 3))
sketch18.addConstraint(Sketcher.Constraint("DistanceX", 1, 2, 1, 1, 4.0))
sketch18.addConstraint(Sketcher.Constraint("DistanceY", 0, 1, 0, 2, 12.0))
sketch18.addConstraint(Sketcher.Constraint("DistanceY", -1, 1, 0, 2, 6.0))
sketch18.addConstraint(Sketcher.Constraint("DistanceX", -1, 1, 0, 2, 9.5))
sketch18.setExpression("Constraints[8]", "Params.sketch18_width")
sketch18.setExpression("Constraints[9]", "Params.sketch18_height")
pad11 = body.newObject("PartDesign::Pad", "Pad010")
pad11.Profile = sketch18
pad11.setExpression("Length", "Params.pad11_length")

sketch19 = body.newObject("Sketcher::SketchObject", "Sketch018")
sketch19.AttachmentSupport = (doc.getObject("XZ_Plane"), [""])
sketch19.MapMode = "FlatFace"
sketch19.AttachmentOffset = App.Placement(Vector(0, 0, -9.5), App.Rotation())
sketch19.addGeometry(Part.LineSegment(Vector(36.8, 5.5, 0), Vector(36.8, -5.5, 0)), False)
sketch19.addGeometry(Part.LineSegment(Vector(36.8, -5.5, 0), Vector(34.8, -5.5, 0)), False)
sketch19.addGeometry(Part.LineSegment(Vector(34.8, -5.5, 0), Vector(34.8, 5.5, 0)), False)
sketch19.addGeometry(Part.LineSegment(Vector(34.8, 5.5, 0), Vector(36.8, 5.5, 0)), False)
sketch19.addConstraint(Sketcher.Constraint("Coincident", 0, 2, 1, 1))
sketch19.addConstraint(Sketcher.Constraint("Coincident", 1, 2, 2, 1))
sketch19.addConstraint(Sketcher.Constraint("Coincident", 2, 2, 3, 1))
sketch19.addConstraint(Sketcher.Constraint("Coincident", 3, 2, 0, 1))
sketch19.addConstraint(Sketcher.Constraint("Vertical", 0))
sketch19.addConstraint(Sketcher.Constraint("Horizontal", 1))
sketch19.addConstraint(Sketcher.Constraint("Vertical", 2))
sketch19.addConstraint(Sketcher.Constraint("Horizontal", 3))
sketch19.addConstraint(Sketcher.Constraint("DistanceX", 1, 2, 1, 1, 2.0))
sketch19.addConstraint(Sketcher.Constraint("DistanceY", 0, 2, 0, 1, 11.0))
sketch19.addConstraint(Sketcher.Constraint("DistanceX", -1, 1, 0, 2, 36.8))
sketch19.addConstraint(Sketcher.Constraint("DistanceY", 0, 2, -1, 1, 5.5))
sketch19.setExpression("Constraints[8]", "Params.sketch19_width")
sketch19.setExpression("Constraints[9]", "Params.sketch19_height")
pocket7 = body.newObject("PartDesign::Pocket", "Pocket006")
pocket7.Profile = sketch19
pocket7.setExpression("Length", "Params.pocket7_length")
pocket7.Reversed = True

sketch20 = body.newObject("Sketcher::SketchObject", "Sketch019")
sketch20.AttachmentSupport = (doc.getObject("XZ_Plane"), [""])
sketch20.MapMode = "FlatFace"
sketch20.AttachmentOffset = App.Placement(Vector(0, 0, -6), App.Rotation())
sketch20.addGeometry(Part.Circle(Vector(35.8, 4.4, 0), Vector(0, 0, 1), 0.8), False)
sketch20.addGeometry(Part.Circle(Vector(35.8, 2.8, 0), Vector(0, 0, 1), 0.8), False)
sketch20.addGeometry(Part.Circle(Vector(35.8, 0.8, 0), Vector(0, 0, 1), 0.8), False)
sketch20.addGeometry(Part.Circle(Vector(35.8, -0.8, 0), Vector(0, 0, 1), 0.8), False)
sketch20.addGeometry(Part.Circle(Vector(35.8, -2.8, 0), Vector(0, 0, 1), 0.8), False)
sketch20.addGeometry(Part.Circle(Vector(35.8, -4.4, 0), Vector(0, 0, 1), 0.8), False)
sketch20.addConstraint(Sketcher.Constraint("Equal", 0, 1))
sketch20.addConstraint(Sketcher.Constraint("Equal", 1, 2))
sketch20.addConstraint(Sketcher.Constraint("Equal", 2, 3))
sketch20.addConstraint(Sketcher.Constraint("Equal", 3, 4))
sketch20.addConstraint(Sketcher.Constraint("Equal", 4, 5))
sketch20.addConstraint(Sketcher.Constraint("Symmetric", 2, 3, 3, 3, -1))
sketch20.addConstraint(Sketcher.Constraint("Symmetric", 1, 3, 4, 3, -1))
sketch20.addConstraint(Sketcher.Constraint("Symmetric", 0, 3, 5, 3, -1))
sketch20.addConstraint(Sketcher.Constraint("Vertical", 0, 3, 1, 3))
sketch20.addConstraint(Sketcher.Constraint("Vertical", 1, 3, 2, 3))
sketch20.addConstraint(Sketcher.Constraint("Diameter", 0, 1.5))
sketch20.addConstraint(Sketcher.Constraint("DistanceY", 2, 3, 1, 3, 2.0))
sketch20.addConstraint(Sketcher.Constraint("DistanceX", -1, 1, 0, 3, 35.8))
sketch20.addConstraint(Sketcher.Constraint("DistanceY", -1, 1, 0, 3, 4.4))
sketch20.addConstraint(Sketcher.Constraint("DistanceY", -1, 1, 1, 3, 2.8))
sketch20.setExpression("Constraints[10]", "Params.sketch20_diameter")
pad12 = body.newObject("PartDesign::Pad", "Pad011")
pad12.Profile = sketch20
pad12.setExpression("Length", "Params.pad12_length")
pad12.Reversed = True

sketch21 = body.newObject("Sketcher::SketchObject", "Sketch020")
sketch21.AttachmentSupport = (doc.getObject("YZ_Plane"), [""])
sketch21.MapMode = "FlatFace"
sketch21.AttachmentOffset = App.Placement(Vector(0, 0, 34.3), App.Rotation())
sketch21.addGeometry(Part.LineSegment(Vector(-10.1, -3, 0), Vector(-7.5, -3, 0)), False)
sketch21.addGeometry(Part.LineSegment(Vector(-7.5, -3, 0), Vector(-7.5, 3, 0)), False)
sketch21.addGeometry(Part.LineSegment(Vector(-7.5, 3, 0), Vector(-10.1, 3, 0)), False)
sketch21.addGeometry(Part.LineSegment(Vector(-10.1, 3, 0), Vector(-10.1, -3, 0)), False)
sketch21.addConstraint(Sketcher.Constraint("Coincident", 0, 2, 1, 1))
sketch21.addConstraint(Sketcher.Constraint("Coincident", 1, 2, 2, 1))
sketch21.addConstraint(Sketcher.Constraint("Coincident", 2, 2, 3, 1))
sketch21.addConstraint(Sketcher.Constraint("Coincident", 3, 2, 0, 1))
sketch21.addConstraint(Sketcher.Constraint("Horizontal", 0))
sketch21.addConstraint(Sketcher.Constraint("Vertical", 1))
sketch21.addConstraint(Sketcher.Constraint("Horizontal", 2))
sketch21.addConstraint(Sketcher.Constraint("Vertical", 3))
sketch21.addConstraint(Sketcher.Constraint("DistanceY", 1, 1, 1, 2, 6.0))
sketch21.addConstraint(Sketcher.Constraint("DistanceX", 0, 1, 0, 2, 2.6))
sketch21.addConstraint(Sketcher.Constraint("DistanceY", 0, 2, -1, 1, 3.0))
sketch21.addConstraint(Sketcher.Constraint("DistanceX", 0, 2, -1, 1, 7.5))
sketch21.setExpression("Constraints[8]", "Params.sketch21_height")
sketch21.setExpression("Constraints[9]", "Params.sketch21_width")
pad13 = body.newObject("PartDesign::Pad", "Pad012")
pad13.Profile = sketch21
pad13.setExpression("Length", "Params.pad13_length")

sketch22 = body.newObject("Sketcher::SketchObject", "Sketch021")
sketch22.AttachmentSupport = (doc.getObject("YZ_Plane"), [""])
sketch22.MapMode = "FlatFace"
sketch22.AttachmentOffset = App.Placement(Vector(0, 0, 40.3), App.Rotation())
sketch22.addGeometry(Part.LineSegment(Vector(-7.8, 2.7, 0), Vector(-9.8, 2.7, 0)), False)
sketch22.addGeometry(Part.LineSegment(Vector(-9.8, 2.7, 0), Vector(-9.8, -2.7, 0)), False)
sketch22.addGeometry(Part.LineSegment(Vector(-9.8, -2.7, 0), Vector(-7.8, -2.7, 0)), False)
sketch22.addGeometry(Part.LineSegment(Vector(-7.8, -2.7, 0), Vector(-7.8, 2.7, 0)), False)
sketch22.addConstraint(Sketcher.Constraint("Coincident", 0, 2, 1, 1))
sketch22.addConstraint(Sketcher.Constraint("Coincident", 1, 2, 2, 1))
sketch22.addConstraint(Sketcher.Constraint("Coincident", 2, 2, 3, 1))
sketch22.addConstraint(Sketcher.Constraint("Coincident", 3, 2, 0, 1))
sketch22.addConstraint(Sketcher.Constraint("Horizontal", 0))
sketch22.addConstraint(Sketcher.Constraint("Vertical", 1))
sketch22.addConstraint(Sketcher.Constraint("Horizontal", 2))
sketch22.addConstraint(Sketcher.Constraint("Vertical", 3))
sketch22.addConstraint(Sketcher.Constraint("DistanceX", 0, 2, 0, 1, 2.0))
sketch22.addConstraint(Sketcher.Constraint("DistanceY", 1, 2, 1, 1, 5.4))
sketch22.addConstraint(Sketcher.Constraint("DistanceX", 0, 2, -1, 1, 9.8))
sketch22.addConstraint(Sketcher.Constraint("DistanceY", -1, 1, 0, 2, 2.7))
sketch22.setExpression("Constraints[8]", "Params.sketch22_width")
sketch22.setExpression("Constraints[9]", "Params.sketch22_height")
pad14 = body.newObject("PartDesign::Pad", "Pad013")
pad14.Profile = sketch22
pad14.setExpression("Length", "Params.pad14_length")

doc.recompute()
